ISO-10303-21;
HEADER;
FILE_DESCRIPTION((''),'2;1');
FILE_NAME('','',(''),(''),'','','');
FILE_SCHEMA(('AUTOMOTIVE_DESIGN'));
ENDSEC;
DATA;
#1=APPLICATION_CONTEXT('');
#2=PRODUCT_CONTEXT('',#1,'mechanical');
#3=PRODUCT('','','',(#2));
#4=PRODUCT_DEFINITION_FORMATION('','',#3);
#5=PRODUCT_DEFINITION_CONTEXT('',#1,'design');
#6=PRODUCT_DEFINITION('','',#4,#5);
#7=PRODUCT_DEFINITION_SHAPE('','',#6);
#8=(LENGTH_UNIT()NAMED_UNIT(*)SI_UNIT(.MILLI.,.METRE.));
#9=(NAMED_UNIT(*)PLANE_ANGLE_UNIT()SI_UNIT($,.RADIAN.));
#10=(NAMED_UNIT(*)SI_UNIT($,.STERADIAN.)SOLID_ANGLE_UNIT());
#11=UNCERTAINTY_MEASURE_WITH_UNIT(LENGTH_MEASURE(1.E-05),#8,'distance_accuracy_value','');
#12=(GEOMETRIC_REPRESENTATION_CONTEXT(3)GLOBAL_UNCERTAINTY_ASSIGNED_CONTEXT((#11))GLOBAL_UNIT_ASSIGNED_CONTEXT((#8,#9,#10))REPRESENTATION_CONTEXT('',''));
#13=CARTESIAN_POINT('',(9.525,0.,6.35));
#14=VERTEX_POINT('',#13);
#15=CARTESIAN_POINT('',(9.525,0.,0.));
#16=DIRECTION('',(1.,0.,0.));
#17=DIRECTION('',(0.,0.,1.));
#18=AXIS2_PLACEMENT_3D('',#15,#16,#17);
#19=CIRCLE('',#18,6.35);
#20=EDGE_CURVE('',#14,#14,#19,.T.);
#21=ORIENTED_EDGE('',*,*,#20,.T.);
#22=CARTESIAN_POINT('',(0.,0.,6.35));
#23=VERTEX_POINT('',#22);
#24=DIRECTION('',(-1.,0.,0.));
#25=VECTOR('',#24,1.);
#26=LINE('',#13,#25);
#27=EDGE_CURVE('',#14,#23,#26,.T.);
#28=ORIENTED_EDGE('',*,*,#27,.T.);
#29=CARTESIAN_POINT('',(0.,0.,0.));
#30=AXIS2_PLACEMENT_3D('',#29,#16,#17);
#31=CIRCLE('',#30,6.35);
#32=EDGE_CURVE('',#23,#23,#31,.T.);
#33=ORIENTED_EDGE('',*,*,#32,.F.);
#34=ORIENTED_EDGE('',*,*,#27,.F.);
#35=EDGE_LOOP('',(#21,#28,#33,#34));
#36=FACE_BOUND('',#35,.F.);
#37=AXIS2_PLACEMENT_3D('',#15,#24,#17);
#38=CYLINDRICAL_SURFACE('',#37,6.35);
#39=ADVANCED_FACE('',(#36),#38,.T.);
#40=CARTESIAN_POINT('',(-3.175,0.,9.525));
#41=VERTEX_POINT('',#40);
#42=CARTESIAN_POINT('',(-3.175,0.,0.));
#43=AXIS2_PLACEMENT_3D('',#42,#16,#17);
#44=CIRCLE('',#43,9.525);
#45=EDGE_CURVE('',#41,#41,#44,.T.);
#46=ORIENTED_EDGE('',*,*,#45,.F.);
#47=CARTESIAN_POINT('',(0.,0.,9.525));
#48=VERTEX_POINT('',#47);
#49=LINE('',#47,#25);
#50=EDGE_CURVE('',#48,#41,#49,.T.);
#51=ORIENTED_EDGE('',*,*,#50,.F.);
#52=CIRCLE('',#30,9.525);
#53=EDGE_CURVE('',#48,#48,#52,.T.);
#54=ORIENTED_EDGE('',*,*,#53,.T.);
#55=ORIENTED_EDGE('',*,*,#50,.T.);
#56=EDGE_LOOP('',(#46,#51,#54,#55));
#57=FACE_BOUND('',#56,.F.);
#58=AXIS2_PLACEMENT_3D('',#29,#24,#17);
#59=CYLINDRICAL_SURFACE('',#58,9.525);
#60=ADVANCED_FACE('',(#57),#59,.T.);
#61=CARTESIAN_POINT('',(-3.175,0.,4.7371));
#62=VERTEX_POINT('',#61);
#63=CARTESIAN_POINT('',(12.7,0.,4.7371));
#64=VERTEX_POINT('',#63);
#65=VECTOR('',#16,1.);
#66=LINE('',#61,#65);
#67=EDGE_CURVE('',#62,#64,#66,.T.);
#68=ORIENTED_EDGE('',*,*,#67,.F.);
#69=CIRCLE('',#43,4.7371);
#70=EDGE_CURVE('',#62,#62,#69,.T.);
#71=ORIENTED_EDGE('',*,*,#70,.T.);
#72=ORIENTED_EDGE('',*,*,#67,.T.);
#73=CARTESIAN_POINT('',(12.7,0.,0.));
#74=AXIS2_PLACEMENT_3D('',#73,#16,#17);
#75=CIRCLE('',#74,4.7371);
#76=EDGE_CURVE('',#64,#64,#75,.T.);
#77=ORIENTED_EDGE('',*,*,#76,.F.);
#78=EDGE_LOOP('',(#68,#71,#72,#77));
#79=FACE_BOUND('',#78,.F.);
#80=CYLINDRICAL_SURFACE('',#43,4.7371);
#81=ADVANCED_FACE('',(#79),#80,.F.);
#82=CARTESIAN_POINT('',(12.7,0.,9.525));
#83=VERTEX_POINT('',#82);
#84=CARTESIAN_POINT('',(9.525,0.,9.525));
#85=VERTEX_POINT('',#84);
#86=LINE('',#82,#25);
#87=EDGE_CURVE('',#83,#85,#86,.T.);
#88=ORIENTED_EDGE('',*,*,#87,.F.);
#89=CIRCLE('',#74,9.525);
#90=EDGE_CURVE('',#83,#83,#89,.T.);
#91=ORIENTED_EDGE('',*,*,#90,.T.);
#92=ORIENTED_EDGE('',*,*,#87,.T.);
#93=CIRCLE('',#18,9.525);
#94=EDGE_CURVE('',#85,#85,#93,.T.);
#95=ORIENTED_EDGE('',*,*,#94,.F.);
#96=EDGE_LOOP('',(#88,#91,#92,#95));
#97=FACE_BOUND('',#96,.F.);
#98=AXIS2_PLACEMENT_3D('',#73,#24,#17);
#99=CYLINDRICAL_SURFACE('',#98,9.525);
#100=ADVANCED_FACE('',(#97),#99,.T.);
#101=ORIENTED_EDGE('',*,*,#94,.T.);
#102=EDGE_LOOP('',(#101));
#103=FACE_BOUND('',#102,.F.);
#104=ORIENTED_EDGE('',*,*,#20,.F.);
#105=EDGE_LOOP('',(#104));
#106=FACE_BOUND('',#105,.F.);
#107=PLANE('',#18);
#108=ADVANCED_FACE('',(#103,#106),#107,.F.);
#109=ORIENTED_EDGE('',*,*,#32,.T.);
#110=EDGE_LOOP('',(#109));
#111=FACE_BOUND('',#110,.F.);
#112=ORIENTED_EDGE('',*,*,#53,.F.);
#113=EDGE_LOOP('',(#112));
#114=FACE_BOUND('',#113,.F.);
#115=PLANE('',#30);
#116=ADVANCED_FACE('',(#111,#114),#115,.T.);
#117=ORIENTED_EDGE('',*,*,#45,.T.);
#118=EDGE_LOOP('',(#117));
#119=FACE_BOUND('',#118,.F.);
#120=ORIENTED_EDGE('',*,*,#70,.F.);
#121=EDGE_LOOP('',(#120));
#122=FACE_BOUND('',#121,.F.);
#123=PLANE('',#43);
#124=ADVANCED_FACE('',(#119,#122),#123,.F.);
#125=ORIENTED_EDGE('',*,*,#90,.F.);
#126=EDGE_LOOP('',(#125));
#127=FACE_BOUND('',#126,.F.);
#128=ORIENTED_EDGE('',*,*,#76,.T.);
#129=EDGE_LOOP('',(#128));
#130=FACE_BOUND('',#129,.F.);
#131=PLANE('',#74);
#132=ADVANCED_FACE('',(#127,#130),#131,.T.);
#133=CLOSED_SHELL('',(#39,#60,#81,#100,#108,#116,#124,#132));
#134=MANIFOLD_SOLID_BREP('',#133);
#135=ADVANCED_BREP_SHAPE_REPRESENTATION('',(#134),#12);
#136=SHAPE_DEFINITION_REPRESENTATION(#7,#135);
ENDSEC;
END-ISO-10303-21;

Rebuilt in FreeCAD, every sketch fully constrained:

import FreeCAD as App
import Part
import Sketcher

V = App.Vector
Q = App.Units.Quantity


def add_polygon(sketch, points):
    """Adds a closed chain of lines whose ends are joined by coincident constraints."""
    first, n = sketch.GeometryCount, len(points)
    for a, b in zip(points, points[1:] + points[:1]):
        sketch.addGeometry(Part.LineSegment(App.Vector(*a, 0), App.Vector(*b, 0)), False)
    for i in range(n):
        sketch.addConstraint(Sketcher.Constraint("Coincident", first + i, 2, first + (i + 1) % n, 1))

doc = App.newDocument("Part")
body = doc.addObject("PartDesign::Body", "Body")

# Sketch on XZ plane
sketch1 = body.newObject("Sketcher::SketchObject", "Sketch")
sketch1.AttachmentSupport = (doc.getObject("XZ_Plane"), [""])
sketch1.MapMode = "FlatFace"
add_polygon(sketch1, [(12.7, 4.7371), (12.7, 9.525), (9.525, 9.525), (9.525, 6.35), (0, 6.35), (0, 9.525), (-3.175, 9.525), (-3.175, 4.7371)])  # lines 0-7
sketch1.addConstraint(Sketcher.Constraint("Vertical", 0))
sketch1.addConstraint(Sketcher.Constraint("Horizontal", 1))
sketch1.addConstraint(Sketcher.Constraint("Vertical", 2))
sketch1.addConstraint(Sketcher.Constraint("Horizontal", 3))
sketch1.addConstraint(Sketcher.Constraint("Vertical", 4))
sketch1.addConstraint(Sketcher.Constraint("Horizontal", 5))
sketch1.addConstraint(Sketcher.Constraint("Vertical", 6))
sketch1.addConstraint(Sketcher.Constraint("Horizontal", 7))
sketch1.addConstraint(Sketcher.Constraint("PointOnObject", 3, 2, -2))
sketch1.addConstraint(Sketcher.Constraint("Horizontal", 1, 2, 4, 2))
sketch1.addConstraint(Sketcher.Constraint("Equal", 1, 5))
sketch1.addConstraint(Sketcher.Constraint("Equal", 5, 2))
sketch1.addConstraint(Sketcher.Constraint("DistanceX", -1, 1, 0, 2, Q("0.5 in")))
sketch1.addConstraint(Sketcher.Constraint("DistanceX", 1, 2, 1, 1, Q("0.125 in")))
sketch1.addConstraint(Sketcher.Constraint("DistanceY", -1, 1, 2, 2, Q("0.25 in")))
sketch1.addConstraint(Sketcher.Constraint("DistanceY", 0, 1, 0, 2, Q("0.1885 in")))
revolution = body.newObject("PartDesign::Revolution", "Revolution")
revolution.Profile = sketch1
revolution.ReferenceAxis = (sketch1, ["H_Axis"])
revolution.Angle = 360

doc.recompute()
